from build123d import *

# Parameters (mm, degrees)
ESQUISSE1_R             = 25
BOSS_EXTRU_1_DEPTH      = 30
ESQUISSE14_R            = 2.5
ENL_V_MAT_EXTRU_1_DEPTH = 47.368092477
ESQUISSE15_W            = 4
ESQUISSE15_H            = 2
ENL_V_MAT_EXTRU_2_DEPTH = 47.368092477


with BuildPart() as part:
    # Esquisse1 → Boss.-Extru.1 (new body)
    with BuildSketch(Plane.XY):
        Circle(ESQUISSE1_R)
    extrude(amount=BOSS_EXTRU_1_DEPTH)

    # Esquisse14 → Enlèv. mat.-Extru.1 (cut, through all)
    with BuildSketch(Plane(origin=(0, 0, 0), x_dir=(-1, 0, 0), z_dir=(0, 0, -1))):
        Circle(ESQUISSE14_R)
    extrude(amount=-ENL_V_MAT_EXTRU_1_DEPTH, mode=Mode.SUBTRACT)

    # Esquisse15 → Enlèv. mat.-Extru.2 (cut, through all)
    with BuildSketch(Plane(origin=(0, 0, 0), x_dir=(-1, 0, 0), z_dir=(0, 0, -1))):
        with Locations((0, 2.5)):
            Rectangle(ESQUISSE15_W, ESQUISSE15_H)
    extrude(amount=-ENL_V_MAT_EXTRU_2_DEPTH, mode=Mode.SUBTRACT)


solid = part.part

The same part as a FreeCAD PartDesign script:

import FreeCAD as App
import Part
import Sketcher

V = App.Vector

doc = App.newDocument("Part")
body = doc.addObject("PartDesign::Body", "Body")

# Sketch on XY plane
sketch1 = body.newObject("Sketcher::SketchObject", "Sketch")
sketch1.AttachmentSupport = (doc.getObject("XY_Plane"), [""])
sketch1.MapMode = "FlatFace"
sketch1.addGeometry(Part.Circle(V(0, 0, 0), V(0, 0, 1), 25), False)
sketch1.addConstraint(Sketcher.Constraint("Coincident", 0, 3, -1, 1))
sketch1.addConstraint(Sketcher.Constraint("Diameter", 0, 50.0))
pad1 = body.newObject("PartDesign::Pad", "Pad")
pad1.Profile = sketch1
pad1.Length = 30

# Sketch on XY plane
sketch2 = body.newObject("Sketcher::SketchObject", "Sketch001")
sketch2.AttachmentSupport = (doc.getObject("XY_Plane"), [""])
sketch2.MapMode = "FlatFace"
sketch2.addGeometry(Part.Circle(V(0, 0, 0), V(0, 0, 1), 2.5), False)
sketch2.addConstraint(Sketcher.Constraint("Coincident", 0, 3, -1, 1))
sketch2.addConstraint(Sketcher.Constraint("Diameter", 0, 5.0))
pocket1 = body.newObject("PartDesign::Pocket", "Pocket")
pocket1.Profile = sketch2
pocket1.Type = "ThroughAll"
pocket1.Reversed = True

# Sketch on XY plane
sketch3 = body.newObject("Sketcher::SketchObject", "Sketch002")
sketch3.AttachmentSupport = (doc.getObject("XY_Plane"), [""])
sketch3.MapMode = "FlatFace"
sketch3.addGeometry(Part.LineSegment(V(2, 3.5, 0), V(2, 1.5, 0)), False)
sketch3.addGeometry(Part.LineSegment(V(2, 1.5, 0), V(-2, 1.5, 0)), False)
sketch3.addGeometry(Part.LineSegment(V(-2, 1.5, 0), V(-2, 3.5, 0)), False)
sketch3.addGeometry(Part.LineSegment(V(-2, 3.5, 0), V(2, 3.5, 0)), False)
sketch3.addConstraint(Sketcher.Constraint("Coincident", 0, 2, 1, 1))
sketch3.addConstraint(Sketcher.Constraint("Coincident", 1, 2, 2, 1))
sketch3.addConstraint(Sketcher.Constraint("Coincident", 2, 2, 3, 1))
sketch3.addConstraint(Sketcher.Constraint("Coincident", 3, 2, 0, 1))
sketch3.addConstraint(Sketcher.Constraint("Vertical", 0))
sketch3.addConstraint(Sketcher.Constraint("Horizontal", 1))
sketch3.addConstraint(Sketcher.Constraint("Vertical", 2))
sketch3.addConstraint(Sketcher.Constraint("Horizontal", 3))
sketch3.addConstraint(Sketcher.Constraint("DistanceX", 1, 2, 1, 1, 4.0))
sketch3.addConstraint(Sketcher.Constraint("DistanceY", 0, 2, 0, 1, 2.0))
sketch3.addConstraint(Sketcher.Constraint("DistanceX", -1, 1, 0, 2, 2.0))
sketch3.addConstraint(Sketcher.Constraint("DistanceY", -1, 1, 0, 2, 1.5))
pocket2 = body.newObject("PartDesign::Pocket", "Pocket001")
pocket2.Profile = sketch3
pocket2.Type = "ThroughAll"
pocket2.Reversed = True

doc.recompute()
